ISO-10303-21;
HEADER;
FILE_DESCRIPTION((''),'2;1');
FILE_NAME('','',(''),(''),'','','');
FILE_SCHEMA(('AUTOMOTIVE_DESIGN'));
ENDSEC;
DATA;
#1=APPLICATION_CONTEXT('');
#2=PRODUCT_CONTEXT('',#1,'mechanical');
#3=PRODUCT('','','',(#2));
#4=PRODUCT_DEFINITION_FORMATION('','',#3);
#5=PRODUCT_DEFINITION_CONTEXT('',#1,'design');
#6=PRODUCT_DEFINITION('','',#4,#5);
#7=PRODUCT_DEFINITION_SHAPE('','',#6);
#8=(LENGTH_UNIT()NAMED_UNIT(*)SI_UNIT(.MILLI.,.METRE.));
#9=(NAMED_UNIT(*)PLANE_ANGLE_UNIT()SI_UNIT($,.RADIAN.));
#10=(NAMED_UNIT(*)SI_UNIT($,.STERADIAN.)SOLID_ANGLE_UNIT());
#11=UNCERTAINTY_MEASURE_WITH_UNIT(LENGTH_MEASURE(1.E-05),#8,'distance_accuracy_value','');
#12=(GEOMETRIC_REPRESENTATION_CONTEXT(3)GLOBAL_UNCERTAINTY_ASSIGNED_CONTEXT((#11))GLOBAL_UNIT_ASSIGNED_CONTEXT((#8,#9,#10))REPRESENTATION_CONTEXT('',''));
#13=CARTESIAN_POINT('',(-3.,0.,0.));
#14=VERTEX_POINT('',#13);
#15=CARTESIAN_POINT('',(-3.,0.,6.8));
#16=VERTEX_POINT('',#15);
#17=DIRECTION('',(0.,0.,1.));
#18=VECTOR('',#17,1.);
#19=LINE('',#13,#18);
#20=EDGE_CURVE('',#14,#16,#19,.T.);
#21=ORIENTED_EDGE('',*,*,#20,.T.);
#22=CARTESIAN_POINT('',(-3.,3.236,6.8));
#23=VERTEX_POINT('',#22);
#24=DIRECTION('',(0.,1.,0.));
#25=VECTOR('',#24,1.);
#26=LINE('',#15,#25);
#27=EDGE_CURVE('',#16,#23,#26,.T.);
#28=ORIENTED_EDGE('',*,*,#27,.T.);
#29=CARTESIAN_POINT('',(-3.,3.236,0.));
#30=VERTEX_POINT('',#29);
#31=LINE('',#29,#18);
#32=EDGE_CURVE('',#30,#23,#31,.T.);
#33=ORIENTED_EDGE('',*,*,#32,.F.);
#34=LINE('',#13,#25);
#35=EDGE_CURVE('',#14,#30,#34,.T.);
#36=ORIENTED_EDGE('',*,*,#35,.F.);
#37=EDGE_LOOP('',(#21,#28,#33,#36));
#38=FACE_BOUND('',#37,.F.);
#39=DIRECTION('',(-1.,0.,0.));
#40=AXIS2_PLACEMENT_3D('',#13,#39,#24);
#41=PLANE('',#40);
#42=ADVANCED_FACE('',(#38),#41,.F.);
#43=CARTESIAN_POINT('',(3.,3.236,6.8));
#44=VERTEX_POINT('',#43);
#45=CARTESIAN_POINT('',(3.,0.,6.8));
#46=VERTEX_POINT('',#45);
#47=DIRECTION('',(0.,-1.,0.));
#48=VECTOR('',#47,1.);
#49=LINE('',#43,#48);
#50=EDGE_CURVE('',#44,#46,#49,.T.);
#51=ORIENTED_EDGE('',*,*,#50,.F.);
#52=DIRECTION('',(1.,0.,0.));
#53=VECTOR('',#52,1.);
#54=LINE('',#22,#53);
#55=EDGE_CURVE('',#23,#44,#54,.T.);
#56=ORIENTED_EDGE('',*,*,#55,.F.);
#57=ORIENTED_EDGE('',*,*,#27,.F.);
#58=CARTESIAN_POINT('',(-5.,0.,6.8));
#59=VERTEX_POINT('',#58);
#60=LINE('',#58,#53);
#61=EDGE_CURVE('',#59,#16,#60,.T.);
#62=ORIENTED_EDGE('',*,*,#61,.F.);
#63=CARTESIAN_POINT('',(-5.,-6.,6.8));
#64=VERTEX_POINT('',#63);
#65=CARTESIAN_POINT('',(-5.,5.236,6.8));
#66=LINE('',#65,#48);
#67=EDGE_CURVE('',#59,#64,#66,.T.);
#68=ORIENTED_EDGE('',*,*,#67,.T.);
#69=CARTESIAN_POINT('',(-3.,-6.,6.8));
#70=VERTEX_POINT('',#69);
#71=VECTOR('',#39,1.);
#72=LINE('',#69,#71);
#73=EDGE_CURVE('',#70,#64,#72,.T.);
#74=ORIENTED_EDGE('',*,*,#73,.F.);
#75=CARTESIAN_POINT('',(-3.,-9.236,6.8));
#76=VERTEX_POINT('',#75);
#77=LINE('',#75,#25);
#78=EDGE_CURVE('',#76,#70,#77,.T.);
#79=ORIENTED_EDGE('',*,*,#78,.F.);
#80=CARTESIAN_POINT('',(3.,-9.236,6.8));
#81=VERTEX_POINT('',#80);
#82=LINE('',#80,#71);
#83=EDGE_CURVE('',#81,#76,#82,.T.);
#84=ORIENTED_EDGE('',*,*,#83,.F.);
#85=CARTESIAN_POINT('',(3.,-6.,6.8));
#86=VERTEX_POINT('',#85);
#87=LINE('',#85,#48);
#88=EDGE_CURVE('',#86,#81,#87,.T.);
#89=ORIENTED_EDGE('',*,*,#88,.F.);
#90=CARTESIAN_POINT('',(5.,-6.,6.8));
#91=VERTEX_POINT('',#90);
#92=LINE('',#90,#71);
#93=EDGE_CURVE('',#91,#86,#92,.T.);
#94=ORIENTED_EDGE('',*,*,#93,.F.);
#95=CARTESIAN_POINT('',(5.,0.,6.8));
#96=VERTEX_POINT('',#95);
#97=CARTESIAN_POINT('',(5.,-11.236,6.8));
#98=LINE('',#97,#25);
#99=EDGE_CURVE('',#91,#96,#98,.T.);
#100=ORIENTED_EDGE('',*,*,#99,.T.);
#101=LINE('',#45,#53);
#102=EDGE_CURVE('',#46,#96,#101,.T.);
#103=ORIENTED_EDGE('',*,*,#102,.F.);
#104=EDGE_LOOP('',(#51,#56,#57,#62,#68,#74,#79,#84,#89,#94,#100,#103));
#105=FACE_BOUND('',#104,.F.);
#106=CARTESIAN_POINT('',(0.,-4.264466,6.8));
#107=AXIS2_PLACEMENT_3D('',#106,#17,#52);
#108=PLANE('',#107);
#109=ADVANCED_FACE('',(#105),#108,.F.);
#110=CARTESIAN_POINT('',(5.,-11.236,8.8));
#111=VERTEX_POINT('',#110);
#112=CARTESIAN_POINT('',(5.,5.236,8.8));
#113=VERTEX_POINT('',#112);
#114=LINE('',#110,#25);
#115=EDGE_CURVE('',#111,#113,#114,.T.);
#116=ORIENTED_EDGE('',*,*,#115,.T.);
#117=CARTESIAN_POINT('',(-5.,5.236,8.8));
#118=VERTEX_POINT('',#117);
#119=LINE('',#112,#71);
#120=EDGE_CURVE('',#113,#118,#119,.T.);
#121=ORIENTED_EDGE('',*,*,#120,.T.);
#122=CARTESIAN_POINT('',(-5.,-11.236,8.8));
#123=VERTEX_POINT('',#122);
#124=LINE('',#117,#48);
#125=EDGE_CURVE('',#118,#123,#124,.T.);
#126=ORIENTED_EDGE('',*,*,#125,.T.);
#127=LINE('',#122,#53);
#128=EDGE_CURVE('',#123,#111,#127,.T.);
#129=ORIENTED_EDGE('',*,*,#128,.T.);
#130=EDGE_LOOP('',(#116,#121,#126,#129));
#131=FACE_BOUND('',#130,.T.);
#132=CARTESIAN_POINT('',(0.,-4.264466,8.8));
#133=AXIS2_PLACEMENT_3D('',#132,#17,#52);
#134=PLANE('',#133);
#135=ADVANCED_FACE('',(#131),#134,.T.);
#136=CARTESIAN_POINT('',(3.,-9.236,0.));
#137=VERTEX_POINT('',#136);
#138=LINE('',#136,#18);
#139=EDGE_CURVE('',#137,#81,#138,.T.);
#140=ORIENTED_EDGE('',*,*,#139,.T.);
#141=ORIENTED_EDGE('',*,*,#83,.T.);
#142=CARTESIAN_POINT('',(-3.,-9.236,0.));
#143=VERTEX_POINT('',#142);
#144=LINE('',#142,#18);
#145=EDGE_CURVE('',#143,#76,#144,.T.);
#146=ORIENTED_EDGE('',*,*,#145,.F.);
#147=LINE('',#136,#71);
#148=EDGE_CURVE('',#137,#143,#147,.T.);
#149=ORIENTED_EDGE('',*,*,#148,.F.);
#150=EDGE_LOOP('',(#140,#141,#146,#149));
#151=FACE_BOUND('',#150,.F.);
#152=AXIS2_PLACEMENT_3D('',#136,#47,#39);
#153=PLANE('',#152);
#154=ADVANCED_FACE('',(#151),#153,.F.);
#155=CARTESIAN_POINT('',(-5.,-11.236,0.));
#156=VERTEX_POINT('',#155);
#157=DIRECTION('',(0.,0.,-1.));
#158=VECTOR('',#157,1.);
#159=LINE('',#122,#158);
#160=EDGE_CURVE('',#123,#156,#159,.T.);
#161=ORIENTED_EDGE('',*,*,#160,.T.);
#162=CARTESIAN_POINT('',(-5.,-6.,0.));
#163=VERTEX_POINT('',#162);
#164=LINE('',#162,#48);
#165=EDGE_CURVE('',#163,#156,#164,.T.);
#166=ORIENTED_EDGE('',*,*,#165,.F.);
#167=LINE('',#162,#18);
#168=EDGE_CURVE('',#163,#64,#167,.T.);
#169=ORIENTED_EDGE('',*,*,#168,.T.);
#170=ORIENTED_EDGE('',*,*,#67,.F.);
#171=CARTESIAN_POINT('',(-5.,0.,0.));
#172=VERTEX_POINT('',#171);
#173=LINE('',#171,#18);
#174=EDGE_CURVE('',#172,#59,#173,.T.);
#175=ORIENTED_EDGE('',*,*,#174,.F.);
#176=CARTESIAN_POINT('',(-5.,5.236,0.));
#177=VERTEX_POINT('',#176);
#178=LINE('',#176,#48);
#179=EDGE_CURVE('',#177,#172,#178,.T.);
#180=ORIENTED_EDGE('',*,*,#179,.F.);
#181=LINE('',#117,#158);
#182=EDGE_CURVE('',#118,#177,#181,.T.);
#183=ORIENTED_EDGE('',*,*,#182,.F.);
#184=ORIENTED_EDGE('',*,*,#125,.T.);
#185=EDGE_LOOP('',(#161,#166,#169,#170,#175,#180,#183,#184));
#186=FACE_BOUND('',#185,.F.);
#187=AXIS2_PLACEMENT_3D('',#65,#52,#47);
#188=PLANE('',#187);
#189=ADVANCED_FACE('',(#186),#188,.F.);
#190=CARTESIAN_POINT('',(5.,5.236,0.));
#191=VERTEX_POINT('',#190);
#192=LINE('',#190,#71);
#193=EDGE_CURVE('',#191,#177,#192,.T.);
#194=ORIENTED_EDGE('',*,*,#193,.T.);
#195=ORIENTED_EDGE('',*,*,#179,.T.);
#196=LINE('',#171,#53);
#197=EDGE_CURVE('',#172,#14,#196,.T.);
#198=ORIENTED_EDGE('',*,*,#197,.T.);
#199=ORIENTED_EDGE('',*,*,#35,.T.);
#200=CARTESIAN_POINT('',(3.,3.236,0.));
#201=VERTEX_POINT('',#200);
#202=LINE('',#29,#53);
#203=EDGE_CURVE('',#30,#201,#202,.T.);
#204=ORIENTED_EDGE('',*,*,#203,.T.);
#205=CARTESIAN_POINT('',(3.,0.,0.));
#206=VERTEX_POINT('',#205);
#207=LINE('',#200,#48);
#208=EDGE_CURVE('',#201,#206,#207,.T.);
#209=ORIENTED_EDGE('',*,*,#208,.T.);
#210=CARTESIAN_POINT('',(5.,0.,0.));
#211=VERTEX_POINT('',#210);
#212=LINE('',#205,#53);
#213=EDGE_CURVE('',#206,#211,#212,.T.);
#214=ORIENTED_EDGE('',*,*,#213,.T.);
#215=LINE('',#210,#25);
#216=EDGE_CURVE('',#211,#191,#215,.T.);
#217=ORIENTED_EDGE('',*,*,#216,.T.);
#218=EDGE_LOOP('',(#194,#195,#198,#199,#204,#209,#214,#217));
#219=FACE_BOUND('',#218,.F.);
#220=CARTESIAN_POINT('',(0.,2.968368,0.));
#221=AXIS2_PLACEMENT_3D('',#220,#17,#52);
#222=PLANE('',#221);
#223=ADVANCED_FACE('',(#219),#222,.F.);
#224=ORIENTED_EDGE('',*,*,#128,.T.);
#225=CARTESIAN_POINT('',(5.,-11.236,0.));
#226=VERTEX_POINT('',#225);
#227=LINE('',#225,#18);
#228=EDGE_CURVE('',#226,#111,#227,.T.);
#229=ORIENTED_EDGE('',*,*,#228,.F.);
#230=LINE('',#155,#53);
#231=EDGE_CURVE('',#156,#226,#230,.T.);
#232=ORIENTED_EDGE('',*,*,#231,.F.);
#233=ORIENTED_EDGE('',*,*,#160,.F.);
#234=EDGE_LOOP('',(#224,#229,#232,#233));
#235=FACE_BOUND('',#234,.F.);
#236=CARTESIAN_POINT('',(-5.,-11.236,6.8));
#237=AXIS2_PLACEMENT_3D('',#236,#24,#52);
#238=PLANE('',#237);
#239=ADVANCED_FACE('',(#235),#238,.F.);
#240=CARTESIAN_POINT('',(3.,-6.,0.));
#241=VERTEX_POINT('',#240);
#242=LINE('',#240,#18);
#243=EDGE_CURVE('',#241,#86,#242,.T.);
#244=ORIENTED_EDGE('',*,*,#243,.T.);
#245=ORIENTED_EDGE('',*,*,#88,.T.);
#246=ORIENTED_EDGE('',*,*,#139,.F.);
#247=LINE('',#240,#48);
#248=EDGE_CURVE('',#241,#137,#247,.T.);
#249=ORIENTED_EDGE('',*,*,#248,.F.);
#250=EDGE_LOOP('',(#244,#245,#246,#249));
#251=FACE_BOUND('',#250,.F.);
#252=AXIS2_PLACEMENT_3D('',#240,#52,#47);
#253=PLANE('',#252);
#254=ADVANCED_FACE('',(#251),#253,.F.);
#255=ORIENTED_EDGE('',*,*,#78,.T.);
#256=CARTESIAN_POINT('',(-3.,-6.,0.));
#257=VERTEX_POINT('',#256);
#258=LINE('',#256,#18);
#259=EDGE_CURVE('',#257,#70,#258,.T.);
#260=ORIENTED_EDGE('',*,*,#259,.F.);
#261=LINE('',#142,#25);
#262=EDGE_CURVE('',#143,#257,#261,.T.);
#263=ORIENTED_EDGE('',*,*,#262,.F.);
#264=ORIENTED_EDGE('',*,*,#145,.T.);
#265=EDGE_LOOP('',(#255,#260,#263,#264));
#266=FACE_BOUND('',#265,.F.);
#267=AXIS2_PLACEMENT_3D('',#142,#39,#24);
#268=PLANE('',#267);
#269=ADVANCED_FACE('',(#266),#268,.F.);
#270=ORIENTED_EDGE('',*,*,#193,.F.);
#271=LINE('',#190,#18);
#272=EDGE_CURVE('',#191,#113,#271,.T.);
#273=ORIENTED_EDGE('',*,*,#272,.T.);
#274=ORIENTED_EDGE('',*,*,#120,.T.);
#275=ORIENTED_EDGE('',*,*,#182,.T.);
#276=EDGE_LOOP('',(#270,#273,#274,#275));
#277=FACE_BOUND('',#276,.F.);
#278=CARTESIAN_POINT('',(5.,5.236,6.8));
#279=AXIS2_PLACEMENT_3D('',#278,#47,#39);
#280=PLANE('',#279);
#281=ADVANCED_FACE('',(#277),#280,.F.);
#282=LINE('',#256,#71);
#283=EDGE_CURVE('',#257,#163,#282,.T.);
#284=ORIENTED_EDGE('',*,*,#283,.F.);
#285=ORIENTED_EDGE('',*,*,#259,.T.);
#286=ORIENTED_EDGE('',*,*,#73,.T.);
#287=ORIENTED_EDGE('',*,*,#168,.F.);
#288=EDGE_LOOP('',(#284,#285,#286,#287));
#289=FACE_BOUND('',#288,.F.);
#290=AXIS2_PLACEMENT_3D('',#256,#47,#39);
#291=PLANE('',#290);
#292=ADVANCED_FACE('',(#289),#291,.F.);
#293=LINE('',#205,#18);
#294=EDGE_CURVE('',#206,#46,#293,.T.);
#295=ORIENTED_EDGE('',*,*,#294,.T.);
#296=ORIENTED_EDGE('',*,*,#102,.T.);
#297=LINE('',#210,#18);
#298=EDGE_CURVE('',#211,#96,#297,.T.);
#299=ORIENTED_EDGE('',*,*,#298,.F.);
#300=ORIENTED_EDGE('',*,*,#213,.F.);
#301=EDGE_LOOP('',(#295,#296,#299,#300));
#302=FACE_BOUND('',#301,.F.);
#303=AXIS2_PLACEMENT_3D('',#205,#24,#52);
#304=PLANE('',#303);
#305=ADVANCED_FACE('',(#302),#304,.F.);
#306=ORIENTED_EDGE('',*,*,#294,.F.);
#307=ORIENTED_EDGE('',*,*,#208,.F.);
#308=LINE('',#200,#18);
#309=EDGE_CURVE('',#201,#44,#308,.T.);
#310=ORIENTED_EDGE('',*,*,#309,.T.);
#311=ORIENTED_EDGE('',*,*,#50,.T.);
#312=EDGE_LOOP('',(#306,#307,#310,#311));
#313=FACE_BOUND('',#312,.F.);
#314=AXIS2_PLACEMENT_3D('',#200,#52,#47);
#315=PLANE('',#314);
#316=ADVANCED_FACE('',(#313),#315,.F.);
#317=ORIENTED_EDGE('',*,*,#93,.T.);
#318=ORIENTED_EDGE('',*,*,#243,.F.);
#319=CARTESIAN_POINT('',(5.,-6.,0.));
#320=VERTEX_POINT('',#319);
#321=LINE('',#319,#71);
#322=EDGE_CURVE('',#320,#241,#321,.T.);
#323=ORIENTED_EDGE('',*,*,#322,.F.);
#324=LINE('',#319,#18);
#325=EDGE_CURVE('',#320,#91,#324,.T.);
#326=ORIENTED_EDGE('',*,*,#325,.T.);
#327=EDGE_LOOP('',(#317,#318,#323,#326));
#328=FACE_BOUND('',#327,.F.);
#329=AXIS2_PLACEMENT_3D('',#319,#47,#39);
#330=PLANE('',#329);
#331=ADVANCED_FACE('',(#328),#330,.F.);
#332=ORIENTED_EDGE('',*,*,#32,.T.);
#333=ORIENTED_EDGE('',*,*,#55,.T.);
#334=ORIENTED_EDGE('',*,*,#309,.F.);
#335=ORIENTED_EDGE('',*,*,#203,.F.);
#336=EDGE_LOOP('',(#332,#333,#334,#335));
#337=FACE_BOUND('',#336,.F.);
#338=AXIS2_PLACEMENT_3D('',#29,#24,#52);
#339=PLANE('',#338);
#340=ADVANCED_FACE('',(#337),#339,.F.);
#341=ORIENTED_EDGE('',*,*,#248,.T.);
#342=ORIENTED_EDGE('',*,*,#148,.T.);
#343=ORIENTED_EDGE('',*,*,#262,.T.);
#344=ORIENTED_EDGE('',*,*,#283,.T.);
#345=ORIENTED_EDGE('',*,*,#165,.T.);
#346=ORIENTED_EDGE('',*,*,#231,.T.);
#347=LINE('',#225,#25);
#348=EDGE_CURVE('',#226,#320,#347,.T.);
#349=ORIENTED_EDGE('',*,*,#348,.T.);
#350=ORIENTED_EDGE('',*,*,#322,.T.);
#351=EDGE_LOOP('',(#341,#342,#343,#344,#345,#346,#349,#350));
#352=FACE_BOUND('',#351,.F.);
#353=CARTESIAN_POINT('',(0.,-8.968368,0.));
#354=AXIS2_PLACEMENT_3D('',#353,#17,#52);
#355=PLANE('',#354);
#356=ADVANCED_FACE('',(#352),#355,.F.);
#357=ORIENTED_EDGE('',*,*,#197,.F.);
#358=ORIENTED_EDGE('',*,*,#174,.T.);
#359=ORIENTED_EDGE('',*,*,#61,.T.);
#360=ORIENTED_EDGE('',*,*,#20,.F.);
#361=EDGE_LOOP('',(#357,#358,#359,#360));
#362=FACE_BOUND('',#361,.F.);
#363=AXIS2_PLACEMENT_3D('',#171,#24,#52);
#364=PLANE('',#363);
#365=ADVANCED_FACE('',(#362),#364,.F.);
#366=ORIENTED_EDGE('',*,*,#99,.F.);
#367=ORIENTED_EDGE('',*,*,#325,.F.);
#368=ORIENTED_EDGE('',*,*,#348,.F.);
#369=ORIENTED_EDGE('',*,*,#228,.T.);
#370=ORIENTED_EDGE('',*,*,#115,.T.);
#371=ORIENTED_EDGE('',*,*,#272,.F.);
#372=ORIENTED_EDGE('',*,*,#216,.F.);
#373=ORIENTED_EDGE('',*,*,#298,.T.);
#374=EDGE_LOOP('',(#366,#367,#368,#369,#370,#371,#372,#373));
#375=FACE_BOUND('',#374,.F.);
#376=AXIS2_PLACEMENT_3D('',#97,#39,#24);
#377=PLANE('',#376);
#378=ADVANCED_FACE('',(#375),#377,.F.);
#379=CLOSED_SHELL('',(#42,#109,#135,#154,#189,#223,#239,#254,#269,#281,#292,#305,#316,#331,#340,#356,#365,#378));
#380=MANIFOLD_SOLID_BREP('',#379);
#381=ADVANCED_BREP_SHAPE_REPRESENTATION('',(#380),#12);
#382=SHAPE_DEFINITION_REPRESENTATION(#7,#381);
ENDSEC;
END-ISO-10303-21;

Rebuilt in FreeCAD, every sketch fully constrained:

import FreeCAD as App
import Part
import Sketcher


def add_polygon(sketch, points):
    """Adds a closed chain of lines whose ends are joined by coincident constraints."""
    first, n = sketch.GeometryCount, len(points)
    for a, b in zip(points, points[1:] + points[:1]):
        sketch.addGeometry(Part.LineSegment(App.Vector(*a, 0), App.Vector(*b, 0)), False)
    for i in range(n):
        sketch.addConstraint(Sketcher.Constraint("Coincident", first + i, 2, first + (i + 1) % n, 1))

doc = App.newDocument("Part")
body = doc.addObject("PartDesign::Body", "Body")

sketch1 = body.newObject("Sketcher::SketchObject", "Sketch")
sketch1.AttachmentSupport = (doc.getObject("XY_Plane"), [""])
sketch1.MapMode = "FlatFace"
add_polygon(sketch1, [(-5, 5.2), (-5, 0), (-3, 0), (-3, 3.2), (3, 3.2), (3, 0), (5, 0), (5, 5.2)])
sketch1.addConstraint(Sketcher.Constraint("Vertical", 0))
sketch1.addConstraint(Sketcher.Constraint("Horizontal", 1))
sketch1.addConstraint(Sketcher.Constraint("Vertical", 2))
sketch1.addConstraint(Sketcher.Constraint("Horizontal", 3))
sketch1.addConstraint(Sketcher.Constraint("Vertical", 4))
sketch1.addConstraint(Sketcher.Constraint("Horizontal", 5))
sketch1.addConstraint(Sketcher.Constraint("Vertical", 6))
sketch1.addConstraint(Sketcher.Constraint("Horizontal", 7))
sketch1.addConstraint(Sketcher.Constraint("Symmetric", 1, 2, 4, 2, -1, 1))
sketch1.addConstraint(Sketcher.Constraint("Symmetric", 0, 2, 5, 2, -2))
sketch1.addConstraint(Sketcher.Constraint("DistanceX", 1, 1, 1, 2, 2.0))
sketch1.addConstraint(Sketcher.Constraint("DistanceX", 3, 1, 3, 2, 6.0))
sketch1.addConstraint(Sketcher.Constraint("DistanceY", 3, 2, 6, 2, 2.0))
sketch1.addConstraint(Sketcher.Constraint("DistanceY", 0, 2, 0, 1, 5.236))
pad1 = body.newObject("PartDesign::Pad", "Pad")
pad1.Profile = sketch1
pad1.Length = 6.8
body2 = doc.addObject("PartDesign::Body", "Body001")

sketch2 = body2.newObject("Sketcher::SketchObject", "Sketch001")
sketch2.AttachmentSupport = (doc.getObject("XY_Plane001"), [""])
sketch2.MapMode = "FlatFace"
add_polygon(sketch2, [(-3, -6), (-5, -6), (-5, -11.2), (5, -11.2), (5, -6), (3, -6), (3, -9.2), (-3, -9.2)])
sketch2.addConstraint(Sketcher.Constraint("Horizontal", 0))
sketch2.addConstraint(Sketcher.Constraint("Vertical", 1))
sketch2.addConstraint(Sketcher.Constraint("Horizontal", 2))
sketch2.addConstraint(Sketcher.Constraint("Vertical", 3))
sketch2.addConstraint(Sketcher.Constraint("Horizontal", 4))
sketch2.addConstraint(Sketcher.Constraint("Vertical", 5))
sketch2.addConstraint(Sketcher.Constraint("Horizontal", 6))
sketch2.addConstraint(Sketcher.Constraint("Vertical", 7))
sketch2.addConstraint(Sketcher.Constraint("Symmetric", 0, 2, 3, 2, -2))
sketch2.addConstraint(Sketcher.Constraint("Equal", 0, 4))
sketch2.addConstraint(Sketcher.Constraint("DistanceX", 0, 2, 0, 1, 2.0))
sketch2.addConstraint(Sketcher.Constraint("DistanceX", 2, 1, 2, 2, 10.0))
sketch2.addConstraint(Sketcher.Constraint("DistanceY", 0, 2, -1, 1, 6.0))
sketch2.addConstraint(Sketcher.Constraint("DistanceY", 2, 2, 5, 2, 2.0))
sketch2.addConstraint(Sketcher.Constraint("DistanceY", 1, 2, 1, 1, 5.236))
pad2 = body2.newObject("PartDesign::Pad", "Pad001")
pad2.Profile = sketch2
pad2.Length = 6.8
body.AllowCompound = True
doc.recompute()

boolean = body.newObject("PartDesign::Boolean", "Boolean")
boolean.Type = "Fuse"
boolean.addObjects([body2])

sketch3 = body.newObject("Sketcher::SketchObject", "Sketch002")
sketch3.AttachmentSupport = (doc.getObject("XY_Plane"), [""])
sketch3.MapMode = "FlatFace"
sketch3.AttachmentOffset = App.Placement(App.Vector(0, 0, 6.8), App.Rotation())
add_polygon(sketch3, [(-5, -11), (5, -11), (5, 5), (-5, 5)])
sketch3.addConstraint(Sketcher.Constraint("Horizontal", 0))
sketch3.addConstraint(Sketcher.Constraint("Vertical", 1))
sketch3.addConstraint(Sketcher.Constraint("Horizontal", 2))
sketch3.addConstraint(Sketcher.Constraint("Vertical", 3))
sketch3.addConstraint(Sketcher.Constraint("DistanceX", 0, 1, 0, 2, 10.0))
sketch3.addConstraint(Sketcher.Constraint("DistanceX", -1, 1, 0, 2, 5.0))
sketch3.addConstraint(Sketcher.Constraint("DistanceY", 1, 1, 1, 2, 16.472))
sketch3.addConstraint(Sketcher.Constraint("DistanceY", 0, 2, -1, 1, 11.236))
pad3 = body.newObject("PartDesign::Pad", "Pad002")
pad3.Profile = sketch3
pad3.Length = 2

doc.recompute()
